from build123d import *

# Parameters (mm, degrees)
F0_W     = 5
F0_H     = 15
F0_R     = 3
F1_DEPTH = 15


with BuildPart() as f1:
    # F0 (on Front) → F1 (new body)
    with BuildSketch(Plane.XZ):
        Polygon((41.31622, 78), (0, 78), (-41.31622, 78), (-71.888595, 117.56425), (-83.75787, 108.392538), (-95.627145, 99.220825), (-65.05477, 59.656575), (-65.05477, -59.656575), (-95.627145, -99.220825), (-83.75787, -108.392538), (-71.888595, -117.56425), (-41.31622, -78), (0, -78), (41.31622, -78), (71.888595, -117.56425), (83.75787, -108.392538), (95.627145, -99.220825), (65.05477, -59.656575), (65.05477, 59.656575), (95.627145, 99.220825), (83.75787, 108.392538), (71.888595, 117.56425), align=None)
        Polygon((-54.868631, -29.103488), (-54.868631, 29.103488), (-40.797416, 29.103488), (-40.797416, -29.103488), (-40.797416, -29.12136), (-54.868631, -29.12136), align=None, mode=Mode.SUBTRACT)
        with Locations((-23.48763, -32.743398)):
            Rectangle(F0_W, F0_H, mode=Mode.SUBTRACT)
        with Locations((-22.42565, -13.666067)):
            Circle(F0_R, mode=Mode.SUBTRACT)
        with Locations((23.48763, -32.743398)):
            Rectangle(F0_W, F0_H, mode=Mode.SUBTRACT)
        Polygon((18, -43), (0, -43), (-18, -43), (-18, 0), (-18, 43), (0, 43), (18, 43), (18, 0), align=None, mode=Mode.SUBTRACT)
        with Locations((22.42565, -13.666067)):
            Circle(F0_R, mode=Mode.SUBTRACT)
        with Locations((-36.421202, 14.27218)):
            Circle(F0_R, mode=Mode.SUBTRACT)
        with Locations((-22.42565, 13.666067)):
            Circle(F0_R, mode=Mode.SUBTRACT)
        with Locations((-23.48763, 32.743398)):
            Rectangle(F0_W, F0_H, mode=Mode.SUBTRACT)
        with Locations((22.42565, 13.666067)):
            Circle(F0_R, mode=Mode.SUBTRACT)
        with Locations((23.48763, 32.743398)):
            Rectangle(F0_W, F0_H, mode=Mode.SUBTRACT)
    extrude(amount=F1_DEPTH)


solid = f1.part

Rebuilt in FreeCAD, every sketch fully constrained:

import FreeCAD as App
import Part
import Sketcher

V = App.Vector
Q = App.Units.Quantity

doc = App.newDocument("Part")
params = doc.addObject("Spreadsheet::Sheet", "Params")
for row, (alias, value) in enumerate([
    ("sketch1_diameter", "6 mm"),
    ("sketch1_width", "5 mm"),
    ("sketch1_width2", "36 mm"),
    ("sketch1_height", "15 mm"),
    ("sketch1_height2", "86 mm"),
    ("pad1_length", "15 mm"),
], start=1):
    params.set(f"A{row}", alias)
    params.set(f"B{row}", "=" + value)
    params.setAlias(f"B{row}", alias)

body = doc.addObject("PartDesign::Body", "Body")

# Sketch on XZ plane
sketch1 = body.newObject("Sketcher::SketchObject", "Sketch")
sketch1.AttachmentSupport = (doc.getObject("XZ_Plane"), [""])
sketch1.MapMode = "FlatFace"
sketch1.addGeometry(Part.LineSegment(V(41.3, 78, 0), V(-41.3, 78, 0)), False)
sketch1.addGeometry(Part.LineSegment(V(-41.3, 78, 0), V(-71.9, 117.6, 0)), False)
sketch1.addGeometry(Part.LineSegment(V(-71.9, 117.6, 0), V(-83.8, 108.4, 0)), False)
sketch1.addGeometry(Part.LineSegment(V(-83.8, 108.4, 0), V(-95.6, 99.2, 0)), False)
sketch1.addGeometry(Part.LineSegment(V(-95.6, 99.2, 0), V(-65.1, 59.7, 0)), False)
sketch1.addGeometry(Part.LineSegment(V(-65.1, 59.7, 0), V(-65.1, -59.7, 0)), False)
sketch1.addGeometry(Part.LineSegment(V(-65.1, -59.7, 0), V(-95.6, -99.2, 0)), False)
sketch1.addGeometry(Part.LineSegment(V(-95.6, -99.2, 0), V(-83.8, -108.4, 0)), False)
sketch1.addGeometry(Part.LineSegment(V(-83.8, -108.4, 0), V(-71.9, -117.6, 0)), False)
sketch1.addGeometry(Part.LineSegment(V(-71.9, -117.6, 0), V(-41.3, -78, 0)), False)
sketch1.addGeometry(Part.LineSegment(V(-41.3, -78, 0), V(41.3, -78, 0)), False)
sketch1.addGeometry(Part.LineSegment(V(41.3, -78, 0), V(71.9, -117.6, 0)), False)
sketch1.addGeometry(Part.LineSegment(V(71.9, -117.6, 0), V(83.8, -108.4, 0)), False)
sketch1.addGeometry(Part.LineSegment(V(83.8, -108.4, 0), V(95.6, -99.2, 0)), False)
sketch1.addGeometry(Part.LineSegment(V(95.6, -99.2, 0), V(65.1, -59.7, 0)), False)
sketch1.addGeometry(Part.LineSegment(V(65.1, -59.7, 0), V(65.1, 59.7, 0)), False)
sketch1.addGeometry(Part.LineSegment(V(65.1, 59.7, 0), V(95.6, 99.2, 0)), False)
sketch1.addGeometry(Part.LineSegment(V(95.6, 99.2, 0), V(83.8, 108.4, 0)), False)
sketch1.addGeometry(Part.LineSegment(V(83.8, 108.4, 0), V(71.9, 117.6, 0)), False)
sketch1.addGeometry(Part.LineSegment(V(71.9, 117.6, 0), V(41.3, 78, 0)), False)
sketch1.addGeometry(Part.LineSegment(V(-21, -40.2, 0), V(-26, -40.2, 0)), False)
sketch1.addGeometry(Part.LineSegment(V(-26, -40.2, 0), V(-26, -25.2, 0)), False)
sketch1.addGeometry(Part.LineSegment(V(-26, -25.2, 0), V(-21, -25.2, 0)), False)
sketch1.addGeometry(Part.LineSegment(V(-21, -25.2, 0), V(-21, -40.2, 0)), False)
sketch1.addGeometry(Part.LineSegment(V(-54.9, -29.1, 0), V(-54.9, 29.1, 0)), False)
sketch1.addGeometry(Part.LineSegment(V(-54.9, 29.1, 0), V(-40.8, 29.1, 0)), False)
sketch1.addGeometry(Part.LineSegment(V(-40.8, 29.1, 0), V(-40.8, -29.1, 0)), False)
sketch1.addGeometry(Part.LineSegment(V(-40.8, -29.1, 0), V(-54.9, -29.1, 0)), False)
sketch1.addGeometry(Part.Circle(V(-22.4, -13.7, 0), V(0, 0, 1), 3), False)
sketch1.addGeometry(Part.LineSegment(V(26, -40.2, 0), V(21, -40.2, 0)), False)
sketch1.addGeometry(Part.LineSegment(V(21, -40.2, 0), V(21, -25.2, 0)), False)
sketch1.addGeometry(Part.LineSegment(V(21, -25.2, 0), V(26, -25.2, 0)), False)
sketch1.addGeometry(Part.LineSegment(V(26, -25.2, 0), V(26, -40.2, 0)), False)
sketch1.addGeometry(Part.Circle(V(22.4, -13.7, 0), V(0, 0, 1), 3), False)
sketch1.addGeometry(Part.Circle(V(-36.4, 14.3, 0), V(0, 0, 1), 3), False)
sketch1.addGeometry(Part.Circle(V(-22.4, 13.7, 0), V(0, 0, 1), 3), False)
sketch1.addGeometry(Part.LineSegment(V(-21, 25.2, 0), V(-26, 25.2, 0)), False)
sketch1.addGeometry(Part.LineSegment(V(-26, 25.2, 0), V(-26, 40.2, 0)), False)
sketch1.addGeometry(Part.LineSegment(V(-26, 40.2, 0), V(-21, 40.2, 0)), False)
sketch1.addGeometry(Part.LineSegment(V(-21, 40.2, 0), V(-21, 25.2, 0)), False)
sketch1.addGeometry(Part.LineSegment(V(18, 43, 0), V(18, -43, 0)), False)
sketch1.addGeometry(Part.LineSegment(V(18, -43, 0), V(-18, -43, 0)), False)
sketch1.addGeometry(Part.LineSegment(V(-18, -43, 0), V(-18, 43, 0)), False)
sketch1.addGeometry(Part.LineSegment(V(-18, 43, 0), V(18, 43, 0)), False)
sketch1.addGeometry(Part.Circle(V(22.4, 13.7, 0), V(0, 0, 1), 3), False)
sketch1.addGeometry(Part.LineSegment(V(26, 25.2, 0), V(21, 25.2, 0)), False)
sketch1.addGeometry(Part.LineSegment(V(21, 25.2, 0), V(21, 40.2, 0)), False)
sketch1.addGeometry(Part.LineSegment(V(21, 40.2, 0), V(26, 40.2, 0)), False)
sketch1.addGeometry(Part.LineSegment(V(26, 40.2, 0), V(26, 25.2, 0)), False)
sketch1.addConstraint(Sketcher.Constraint("Coincident", 0, 2, 1, 1))
sketch1.addConstraint(Sketcher.Constraint("Coincident", 1, 2, 2, 1))
sketch1.addConstraint(Sketcher.Constraint("Coincident", 2, 2, 3, 1))
sketch1.addConstraint(Sketcher.Constraint("Coincident", 3, 2, 4, 1))
sketch1.addConstraint(Sketcher.Constraint("Coincident", 4, 2, 5, 1))
sketch1.addConstraint(Sketcher.Constraint("Coincident", 5, 2, 6, 1))
sketch1.addConstraint(Sketcher.Constraint("Coincident", 6, 2, 7, 1))
sketch1.addConstraint(Sketcher.Constraint("Coincident", 7, 2, 8, 1))
sketch1.addConstraint(Sketcher.Constraint("Coincident", 8, 2, 9, 1))
sketch1.addConstraint(Sketcher.Constraint("Coincident", 9, 2, 10, 1))
sketch1.addConstraint(Sketcher.Constraint("Coincident", 10, 2, 11, 1))
sketch1.addConstraint(Sketcher.Constraint("Coincident", 11, 2, 12, 1))
sketch1.addConstraint(Sketcher.Constraint("Coincident", 12, 2, 13, 1))
sketch1.addConstraint(Sketcher.Constraint("Coincident", 13, 2, 14, 1))
sketch1.addConstraint(Sketcher.Constraint("Coincident", 14, 2, 15, 1))
sketch1.addConstraint(Sketcher.Constraint("Coincident", 15, 2, 16, 1))
sketch1.addConstraint(Sketcher.Constraint("Coincident", 16, 2, 17, 1))
sketch1.addConstraint(Sketcher.Constraint("Coincident", 17, 2, 18, 1))
sketch1.addConstraint(Sketcher.Constraint("Coincident", 18, 2, 19, 1))
sketch1.addConstraint(Sketcher.Constraint("Coincident", 19, 2, 0, 1))
sketch1.addConstraint(Sketcher.Constraint("Coincident", 20, 2, 21, 1))
sketch1.addConstraint(Sketcher.Constraint("Coincident", 21, 2, 22, 1))
sketch1.addConstraint(Sketcher.Constraint("Coincident", 22, 2, 23, 1))
sketch1.addConstraint(Sketcher.Constraint("Coincident", 23, 2, 20, 1))
sketch1.addConstraint(Sketcher.Constraint("Coincident", 24, 2, 25, 1))
sketch1.addConstraint(Sketcher.Constraint("Coincident", 25, 2, 26, 1))
sketch1.addConstraint(Sketcher.Constraint("Coincident", 26, 2, 27, 1))
sketch1.addConstraint(Sketcher.Constraint("Coincident", 27, 2, 24, 1))
sketch1.addConstraint(Sketcher.Constraint("Coincident", 29, 2, 30, 1))
sketch1.addConstraint(Sketcher.Constraint("Coincident", 30, 2, 31, 1))
sketch1.addConstraint(Sketcher.Constraint("Coincident", 31, 2, 32, 1))
sketch1.addConstraint(Sketcher.Constraint("Coincident", 32, 2, 29, 1))
sketch1.addConstraint(Sketcher.Constraint("Coincident", 36, 2, 37, 1))
sketch1.addConstraint(Sketcher.Constraint("Coincident", 37, 2, 38, 1))
sketch1.addConstraint(Sketcher.Constraint("Coincident", 38, 2, 39, 1))
sketch1.addConstraint(Sketcher.Constraint("Coincident", 39, 2, 36, 1))
sketch1.addConstraint(Sketcher.Constraint("Coincident", 40, 2, 41, 1))
sketch1.addConstraint(Sketcher.Constraint("Coincident", 41, 2, 42, 1))
sketch1.addConstraint(Sketcher.Constraint("Coincident", 42, 2, 43, 1))
sketch1.addConstraint(Sketcher.Constraint("Coincident", 43, 2, 40, 1))
sketch1.addConstraint(Sketcher.Constraint("Coincident", 45, 2, 46, 1))
sketch1.addConstraint(Sketcher.Constraint("Coincident", 46, 2, 47, 1))
sketch1.addConstraint(Sketcher.Constraint("Coincident", 47, 2, 48, 1))
sketch1.addConstraint(Sketcher.Constraint("Coincident", 48, 2, 45, 1))
sketch1.addConstraint(Sketcher.Constraint("Horizontal", 0))
sketch1.addConstraint(Sketcher.Constraint("Vertical", 5))
sketch1.addConstraint(Sketcher.Constraint("Horizontal", 10))
sketch1.addConstraint(Sketcher.Constraint("Vertical", 15))
sketch1.addConstraint(Sketcher.Constraint("Horizontal", 20))
sketch1.addConstraint(Sketcher.Constraint("Vertical", 21))
sketch1.addConstraint(Sketcher.Constraint("Horizontal", 22))
sketch1.addConstraint(Sketcher.Constraint("Vertical", 23))
sketch1.addConstraint(Sketcher.Constraint("Vertical", 24))
sketch1.addConstraint(Sketcher.Constraint("Horizontal", 25))
sketch1.addConstraint(Sketcher.Constraint("Vertical", 26))
sketch1.addConstraint(Sketcher.Constraint("Horizontal", 27))
sketch1.addConstraint(Sketcher.Constraint("Horizontal", 29))
sketch1.addConstraint(Sketcher.Constraint("Vertical", 30))
sketch1.addConstraint(Sketcher.Constraint("Horizontal", 31))
sketch1.addConstraint(Sketcher.Constraint("Vertical", 32))
sketch1.addConstraint(Sketcher.Constraint("Horizontal", 36))
sketch1.addConstraint(Sketcher.Constraint("Vertical", 37))
sketch1.addConstraint(Sketcher.Constraint("Horizontal", 38))
sketch1.addConstraint(Sketcher.Constraint("Vertical", 39))
sketch1.addConstraint(Sketcher.Constraint("Vertical", 40))
sketch1.addConstraint(Sketcher.Constraint("Horizontal", 41))
sketch1.addConstraint(Sketcher.Constraint("Vertical", 42))
sketch1.addConstraint(Sketcher.Constraint("Horizontal", 43))
sketch1.addConstraint(Sketcher.Constraint("Horizontal", 45))
sketch1.addConstraint(Sketcher.Constraint("Vertical", 46))
sketch1.addConstraint(Sketcher.Constraint("Horizontal", 47))
sketch1.addConstraint(Sketcher.Constraint("Vertical", 48))
sketch1.addConstraint(Sketcher.Constraint("Equal", 28, 33))
sketch1.addConstraint(Sketcher.Constraint("Equal", 33, 34))
sketch1.addConstraint(Sketcher.Constraint("Equal", 34, 35))
sketch1.addConstraint(Sketcher.Constraint("Equal", 35, 44))
sketch1.addConstraint(Sketcher.Constraint("Symmetric", 33, 3, 35, 3, -1, 1))
sketch1.addConstraint(Sketcher.Constraint("Symmetric", 28, 3, 44, 3, -1, 1))
sketch1.addConstraint(Sketcher.Constraint("Symmetric", 0, 2, 10, 2, -1, 1))
sketch1.addConstraint(Sketcher.Constraint("Symmetric", 1, 2, 11, 2, -1, 1))
sketch1.addConstraint(Sketcher.Constraint("Symmetric", 2, 2, 12, 2, -1, 1))
sketch1.addConstraint(Sketcher.Constraint("Symmetric", 3, 2, 13, 2, -1, 1))
sketch1.addConstraint(Sketcher.Constraint("Symmetric", 4, 2, 14, 2, -1, 1))
sketch1.addConstraint(Sketcher.Constraint("Symmetric", 6, 2, 16, 2, -1, 1))
sketch1.addConstraint(Sketcher.Constraint("Symmetric", 7, 2, 17, 2, -1, 1))
sketch1.addConstraint(Sketcher.Constraint("Symmetric", 8, 2, 18, 2, -1, 1))
sketch1.addConstraint(Sketcher.Constraint("Symmetric", 31, 2, 36, 2, -1, 1))
sketch1.addConstraint(Sketcher.Constraint("Symmetric", 29, 2, 38, 2, -1, 1))
sketch1.addConstraint(Sketcher.Constraint("Symmetric", 40, 2, 42, 2, -1, 1))
sketch1.addConstraint(Sketcher.Constraint("Symmetric", 22, 2, 45, 2, -1, 1))
sketch1.addConstraint(Sketcher.Constraint("Symmetric", 20, 2, 47, 2, -1, 1))
sketch1.addConstraint(Sketcher.Constraint("Symmetric", 28, 3, 33, 3, -2))
sketch1.addConstraint(Sketcher.Constraint("Symmetric", 8, 2, 11, 2, -2))
sketch1.addConstraint(Sketcher.Constraint("Symmetric", 7, 2, 12, 2, -2))
sketch1.addConstraint(Sketcher.Constraint("Symmetric", 6, 2, 13, 2, -2))
sketch1.addConstraint(Sketcher.Constraint("Symmetric", 23, 2, 29, 2, -2))
sketch1.addConstraint(Sketcher.Constraint("Symmetric", 21, 2, 31, 2, -2))
sketch1.addConstraint(Sketcher.Constraint("Perpendicular", 1, 2))
sketch1.addConstraint(Sketcher.Constraint("Parallel", 2, 3))
sketch1.addConstraint(Sketcher.Constraint("Perpendicular", 3, 4))
sketch1.addConstraint(Sketcher.Constraint("Perpendicular", 6, 7))
sketch1.addConstraint(Sketcher.Constraint("Perpendicular", 8, 9))
sketch1.addConstraint(Sketcher.Constraint("Parallel", 9, 16))
sketch1.addConstraint(Sketcher.Constraint("Perpendicular", 18, 19))
sketch1.addConstraint(Sketcher.Constraint("Equal", 2, 3))
sketch1.addConstraint(Sketcher.Constraint("Equal", 1, 4))
sketch1.addConstraint(Sketcher.Constraint("Diameter", 28, Q("6 mm")))
sketch1.addConstraint(Sketcher.Constraint("DistanceX", 20, 2, 20, 1, Q("5 mm")))
sketch1.addConstraint(Sketcher.Constraint("DistanceX", 41, 2, 41, 1, Q("36 mm")))
sketch1.addConstraint(Sketcher.Constraint("DistanceY", 21, 1, 21, 2, Q("15 mm")))
sketch1.addConstraint(Sketcher.Constraint("DistanceY", 40, 2, 40, 1, Q("86 mm")))
sketch1.addConstraint(Sketcher.Constraint("Distance", 1, Q("50 mm")))
sketch1.addConstraint(Sketcher.Constraint("Distance", 2, Q("15 mm")))
sketch1.addConstraint(Sketcher.Constraint("DistanceY", -1, 1, 0, 2, Q("78 mm")))
sketch1.addConstraint(Sketcher.Constraint("DistanceX", 27, 2, 21, 2, Q("28.881001 mm")))
sketch1.addConstraint(Sketcher.Constraint("DistanceX", 0, 2, 0, 1, Q("82.63244 mm")))
sketch1.addConstraint(Sketcher.Constraint("DistanceY", 5, 2, 5, 1, Q("119.31315 mm")))
sketch1.addConstraint(Sketcher.Constraint("DistanceX", 28, 3, 33, 3, Q("44.8513 mm")))
sketch1.addConstraint(Sketcher.Constraint("DistanceX", 25, 1, 25, 2, Q("14.071215 mm")))
sketch1.addConstraint(Sketcher.Constraint("DistanceY", 24, 1, 24, 2, Q("58.224848 mm")))
sketch1.addConstraint(Sketcher.Constraint("DistanceY", -1, 1, 34, 3, Q("14.27218 mm")))
sketch1.addConstraint(Sketcher.Constraint("DistanceX", 20, 2, -1, 1, Q("25.98763 mm")))
sketch1.addConstraint(Sketcher.Constraint("DistanceY", 26, 2, -1, 1, Q("29.12136 mm")))
sketch1.addConstraint(Sketcher.Constraint("DistanceX", 34, 3, 33, 3, Q("58.846852 mm")))
sketch1.addConstraint(Sketcher.Constraint("DistanceY", 35, 3, 2, 2, Q("94.726471 mm")))
sketch1.addConstraint(Sketcher.Constraint("DistanceY", 20, 2, 28, 3, Q("26.577331 mm")))
sketch1.setExpression("Constraints[106]", "Params.sketch1_diameter")
sketch1.setExpression("Constraints[107]", "Params.sketch1_width")
sketch1.setExpression("Constraints[108]", "Params.sketch1_width2")
sketch1.setExpression("Constraints[109]", "Params.sketch1_height")
sketch1.setExpression("Constraints[110]", "Params.sketch1_height2")
pad1 = body.newObject("PartDesign::Pad", "Pad")
pad1.Profile = sketch1
pad1.setExpression("Length", "Params.pad1_length")

doc.recompute()
